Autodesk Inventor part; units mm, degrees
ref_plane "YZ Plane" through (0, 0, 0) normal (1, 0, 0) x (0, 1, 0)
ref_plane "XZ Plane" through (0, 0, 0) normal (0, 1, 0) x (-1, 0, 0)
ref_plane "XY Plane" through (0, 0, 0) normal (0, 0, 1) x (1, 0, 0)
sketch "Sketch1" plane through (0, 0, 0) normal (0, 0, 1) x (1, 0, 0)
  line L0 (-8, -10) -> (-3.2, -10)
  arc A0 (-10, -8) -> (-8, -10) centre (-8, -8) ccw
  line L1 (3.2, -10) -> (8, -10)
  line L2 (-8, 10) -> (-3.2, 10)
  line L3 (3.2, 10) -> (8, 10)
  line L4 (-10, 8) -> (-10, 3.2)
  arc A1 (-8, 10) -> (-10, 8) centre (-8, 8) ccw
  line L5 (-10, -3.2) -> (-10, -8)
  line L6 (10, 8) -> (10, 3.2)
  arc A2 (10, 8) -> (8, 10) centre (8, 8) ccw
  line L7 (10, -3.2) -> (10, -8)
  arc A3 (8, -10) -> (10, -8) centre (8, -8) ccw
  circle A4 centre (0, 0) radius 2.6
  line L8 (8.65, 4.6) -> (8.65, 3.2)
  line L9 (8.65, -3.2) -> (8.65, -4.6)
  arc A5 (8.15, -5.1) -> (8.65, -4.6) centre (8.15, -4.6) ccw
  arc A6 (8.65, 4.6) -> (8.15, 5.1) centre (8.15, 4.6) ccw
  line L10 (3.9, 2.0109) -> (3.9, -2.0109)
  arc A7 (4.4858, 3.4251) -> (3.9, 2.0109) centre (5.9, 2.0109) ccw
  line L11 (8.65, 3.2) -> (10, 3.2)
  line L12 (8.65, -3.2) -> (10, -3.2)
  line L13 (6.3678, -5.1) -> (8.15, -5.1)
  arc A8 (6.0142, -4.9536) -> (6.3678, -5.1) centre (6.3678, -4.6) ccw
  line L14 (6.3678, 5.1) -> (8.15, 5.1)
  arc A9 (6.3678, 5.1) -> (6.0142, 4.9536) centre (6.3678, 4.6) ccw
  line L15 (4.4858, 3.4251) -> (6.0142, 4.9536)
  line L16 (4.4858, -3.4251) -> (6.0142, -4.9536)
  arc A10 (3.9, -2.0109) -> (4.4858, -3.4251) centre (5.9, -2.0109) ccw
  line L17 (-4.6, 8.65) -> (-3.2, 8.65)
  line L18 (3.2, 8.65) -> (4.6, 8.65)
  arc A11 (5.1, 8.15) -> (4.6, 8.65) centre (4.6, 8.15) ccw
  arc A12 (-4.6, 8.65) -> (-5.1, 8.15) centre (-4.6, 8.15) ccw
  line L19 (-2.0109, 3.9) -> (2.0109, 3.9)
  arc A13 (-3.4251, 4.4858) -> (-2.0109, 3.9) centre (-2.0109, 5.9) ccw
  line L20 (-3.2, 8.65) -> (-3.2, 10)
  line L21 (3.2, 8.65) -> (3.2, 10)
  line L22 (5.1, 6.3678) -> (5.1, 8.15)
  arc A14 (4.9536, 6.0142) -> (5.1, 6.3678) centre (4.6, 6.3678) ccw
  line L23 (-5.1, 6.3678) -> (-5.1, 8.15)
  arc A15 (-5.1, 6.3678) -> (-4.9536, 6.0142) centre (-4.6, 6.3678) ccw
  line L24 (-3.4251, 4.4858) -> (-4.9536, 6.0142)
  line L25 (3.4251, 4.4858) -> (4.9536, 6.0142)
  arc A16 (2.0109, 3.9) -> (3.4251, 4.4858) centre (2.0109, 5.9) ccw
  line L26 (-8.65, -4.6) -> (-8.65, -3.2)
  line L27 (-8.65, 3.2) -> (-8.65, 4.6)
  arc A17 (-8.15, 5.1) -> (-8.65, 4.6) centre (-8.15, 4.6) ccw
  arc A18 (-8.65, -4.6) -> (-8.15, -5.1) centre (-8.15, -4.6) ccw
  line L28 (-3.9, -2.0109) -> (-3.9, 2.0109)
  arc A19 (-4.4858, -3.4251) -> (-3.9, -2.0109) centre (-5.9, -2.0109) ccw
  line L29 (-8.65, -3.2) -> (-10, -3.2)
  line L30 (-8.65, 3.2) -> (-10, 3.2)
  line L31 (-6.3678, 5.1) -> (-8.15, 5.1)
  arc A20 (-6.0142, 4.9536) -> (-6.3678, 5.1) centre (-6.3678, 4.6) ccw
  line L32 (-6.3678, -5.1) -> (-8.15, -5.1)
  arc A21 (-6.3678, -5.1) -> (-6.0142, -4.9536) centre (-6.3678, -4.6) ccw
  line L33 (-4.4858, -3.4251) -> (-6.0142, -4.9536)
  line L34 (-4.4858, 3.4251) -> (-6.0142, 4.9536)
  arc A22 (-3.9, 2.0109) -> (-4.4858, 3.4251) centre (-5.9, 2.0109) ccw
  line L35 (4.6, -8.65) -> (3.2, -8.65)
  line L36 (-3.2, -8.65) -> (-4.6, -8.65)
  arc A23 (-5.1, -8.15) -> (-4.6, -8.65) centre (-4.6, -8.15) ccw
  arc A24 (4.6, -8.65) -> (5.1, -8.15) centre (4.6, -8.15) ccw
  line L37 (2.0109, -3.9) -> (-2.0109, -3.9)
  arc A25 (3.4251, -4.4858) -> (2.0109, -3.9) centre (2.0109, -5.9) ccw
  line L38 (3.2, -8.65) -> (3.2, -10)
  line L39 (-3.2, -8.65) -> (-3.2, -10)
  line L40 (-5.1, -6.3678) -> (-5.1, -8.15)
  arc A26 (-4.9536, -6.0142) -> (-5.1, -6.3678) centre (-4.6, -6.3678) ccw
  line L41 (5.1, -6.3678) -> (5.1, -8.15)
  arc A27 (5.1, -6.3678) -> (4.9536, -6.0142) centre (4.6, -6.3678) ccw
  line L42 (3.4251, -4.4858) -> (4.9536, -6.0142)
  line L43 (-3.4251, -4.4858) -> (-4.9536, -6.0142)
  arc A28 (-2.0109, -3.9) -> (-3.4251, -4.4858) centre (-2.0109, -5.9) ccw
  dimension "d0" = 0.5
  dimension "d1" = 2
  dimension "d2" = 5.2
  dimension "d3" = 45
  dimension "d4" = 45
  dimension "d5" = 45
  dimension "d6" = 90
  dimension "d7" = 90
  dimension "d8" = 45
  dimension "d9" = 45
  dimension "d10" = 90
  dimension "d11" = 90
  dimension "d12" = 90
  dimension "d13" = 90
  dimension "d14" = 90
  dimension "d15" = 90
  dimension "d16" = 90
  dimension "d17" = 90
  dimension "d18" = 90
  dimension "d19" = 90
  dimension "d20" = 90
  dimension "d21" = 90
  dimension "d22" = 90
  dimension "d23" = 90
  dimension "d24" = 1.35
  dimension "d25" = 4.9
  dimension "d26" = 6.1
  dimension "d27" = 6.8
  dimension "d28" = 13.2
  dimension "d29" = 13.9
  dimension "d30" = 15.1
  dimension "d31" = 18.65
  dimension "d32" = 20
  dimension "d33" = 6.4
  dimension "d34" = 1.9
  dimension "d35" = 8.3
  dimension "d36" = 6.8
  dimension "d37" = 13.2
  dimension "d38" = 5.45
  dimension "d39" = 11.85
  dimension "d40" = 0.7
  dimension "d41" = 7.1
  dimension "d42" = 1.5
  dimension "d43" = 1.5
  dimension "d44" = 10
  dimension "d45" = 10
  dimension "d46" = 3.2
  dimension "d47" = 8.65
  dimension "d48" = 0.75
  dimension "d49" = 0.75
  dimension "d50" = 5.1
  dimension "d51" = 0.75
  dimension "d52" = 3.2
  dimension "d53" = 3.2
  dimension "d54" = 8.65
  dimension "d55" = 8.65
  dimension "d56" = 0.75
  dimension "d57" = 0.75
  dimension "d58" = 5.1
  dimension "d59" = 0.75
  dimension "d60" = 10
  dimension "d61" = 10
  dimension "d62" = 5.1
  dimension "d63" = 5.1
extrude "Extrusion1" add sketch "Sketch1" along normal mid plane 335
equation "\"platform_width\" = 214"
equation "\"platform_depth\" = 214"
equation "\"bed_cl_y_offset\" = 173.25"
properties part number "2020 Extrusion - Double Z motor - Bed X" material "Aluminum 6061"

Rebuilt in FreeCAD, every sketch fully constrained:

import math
import FreeCAD as App
import Part
import Sketcher

V = App.Vector

doc = App.newDocument("Part")
params = doc.addObject("Spreadsheet::Sheet", "Params")
for row, (alias, value) in enumerate([
    ("sketch1_radius", "2 mm"),
    ("sketch1_diameter", "5.2 mm"),
    ("sketch1_radius2", "0.5 mm"),
    ("sketch1_width", "1.35 mm"),
    ("pad1_length", "335 mm"),
], start=1):
    params.set(f"A{row}", alias)
    params.set(f"B{row}", "=" + value)
    params.setAlias(f"B{row}", alias)

body = doc.addObject("PartDesign::Body", "Body")

sketch1 = doc.addObject("Sketcher::SketchObject", "Sketch")
body.addObject(sketch1)
sketch1.AttachmentSupport = (doc.XY_Plane, [""])
sketch1.MapMode = "FlatFace"
sketch1.addGeometry([
    Part.ArcOfCircle(Part.Circle(V(-8, -8, 0), V(0, 0, 1), 2), math.radians(180), math.radians(270)),
    Part.LineSegment(V(-8, -10, 0), V(-3.2, -10, 0)),
    Part.LineSegment(V(-3.2, -10, 0), V(-3.2, -8.65, 0)),
    Part.LineSegment(V(-3.2, -8.65, 0), V(-4.6, -8.65, 0)),
    Part.ArcOfCircle(Part.Circle(V(-4.6, -8.15, 0), V(0, 0, 1), 0.5), math.radians(180), math.radians(270)),
    Part.LineSegment(V(-5.1, -8.15, 0), V(-5.1, -6.37, 0)),
    Part.ArcOfCircle(Part.Circle(V(-4.6, -6.37, 0), V(0, 0, 1), 0.5), math.radians(135), math.radians(180)),
    Part.LineSegment(V(-4.95, -6.01, 0), V(-3.43, -4.49, 0)),
    Part.ArcOfCircle(Part.Circle(V(-2.01, -5.9, 0), V(0, 0, 1), 2), math.radians(90), math.radians(135)),
    Part.LineSegment(V(-2.01, -3.9, 0), V(2.01, -3.9, 0)),
    Part.ArcOfCircle(Part.Circle(V(2.01, -5.9, 0), V(0, 0, 1), 2), math.radians(45), math.radians(90)),
    Part.LineSegment(V(3.43, -4.49, 0), V(4.95, -6.01, 0)),
    Part.ArcOfCircle(Part.Circle(V(4.6, -6.37, 0), V(0, 0, 1), 0.5), math.radians(0), math.radians(45)),
    Part.LineSegment(V(5.1, -6.37, 0), V(5.1, -8.15, 0)),
    Part.ArcOfCircle(Part.Circle(V(4.6, -8.15, 0), V(0, 0, 1), 0.5), math.radians(-90), math.radians(0)),
    Part.LineSegment(V(4.6, -8.65, 0), V(3.2, -8.65, 0)),
    Part.LineSegment(V(3.2, -8.65, 0), V(3.2, -10, 0)),
    Part.LineSegment(V(3.2, -10, 0), V(8, -10, 0)),
    Part.ArcOfCircle(Part.Circle(V(8, -8, 0), V(0, 0, 1), 2), math.radians(-90), math.radians(0)),
    Part.LineSegment(V(10, -8, 0), V(10, -3.2, 0)),
    Part.LineSegment(V(10, -3.2, 0), V(8.65, -3.2, 0)),
    Part.LineSegment(V(8.65, -3.2, 0), V(8.65, -4.6, 0)),
    Part.ArcOfCircle(Part.Circle(V(8.15, -4.6, 0), V(0, 0, 1), 0.5), math.radians(-90), math.radians(0)),
    Part.LineSegment(V(8.15, -5.1, 0), V(6.37, -5.1, 0)),
    Part.ArcOfCircle(Part.Circle(V(6.37, -4.6, 0), V(0, 0, 1), 0.5), math.radians(-135), math.radians(-90)),
    Part.LineSegment(V(6.01, -4.95, 0), V(4.49, -3.43, 0)),
    Part.ArcOfCircle(Part.Circle(V(5.9, -2.01, 0), V(0, 0, 1), 2), math.radians(180), math.radians(225)),
    Part.LineSegment(V(3.9, -2.01, 0), V(3.9, 2.01, 0)),
    Part.ArcOfCircle(Part.Circle(V(5.9, 2.01, 0), V(0, 0, 1), 2), math.radians(135), math.radians(180)),
    Part.LineSegment(V(4.49, 3.43, 0), V(6.01, 4.95, 0)),
    Part.ArcOfCircle(Part.Circle(V(6.37, 4.6, 0), V(0, 0, 1), 0.5), math.radians(90), math.radians(135)),
    Part.LineSegment(V(6.37, 5.1, 0), V(8.15, 5.1, 0)),
    Part.ArcOfCircle(Part.Circle(V(8.15, 4.6, 0), V(0, 0, 1), 0.5), math.radians(0), math.radians(90)),
    Part.LineSegment(V(8.65, 4.6, 0), V(8.65, 3.2, 0)),
    Part.LineSegment(V(8.65, 3.2, 0), V(10, 3.2, 0)),
    Part.LineSegment(V(10, 3.2, 0), V(10, 8, 0)),
    Part.ArcOfCircle(Part.Circle(V(8, 8, 0), V(0, 0, 1), 2), math.radians(0), math.radians(90)),
    Part.LineSegment(V(8, 10, 0), V(3.2, 10, 0)),
    Part.LineSegment(V(3.2, 10, 0), V(3.2, 8.65, 0)),
    Part.LineSegment(V(3.2, 8.65, 0), V(4.6, 8.65, 0)),
    Part.ArcOfCircle(Part.Circle(V(4.6, 8.15, 0), V(0, 0, 1), 0.5), math.radians(0), math.radians(90)),
    Part.LineSegment(V(5.1, 8.15, 0), V(5.1, 6.37, 0)),
    Part.ArcOfCircle(Part.Circle(V(4.6, 6.37, 0), V(0, 0, 1), 0.5), math.radians(-45), math.radians(0)),
    Part.LineSegment(V(4.95, 6.01, 0), V(3.43, 4.49, 0)),
    Part.ArcOfCircle(Part.Circle(V(2.01, 5.9, 0), V(0, 0, 1), 2), math.radians(-90), math.radians(-45)),
    Part.LineSegment(V(2.01, 3.9, 0), V(-2.01, 3.9, 0)),
    Part.ArcOfCircle(Part.Circle(V(-2.01, 5.9, 0), V(0, 0, 1), 2), math.radians(-135), math.radians(-90)),
    Part.LineSegment(V(-3.43, 4.49, 0), V(-4.95, 6.01, 0)),
    Part.ArcOfCircle(Part.Circle(V(-4.6, 6.37, 0), V(0, 0, 1), 0.5), math.radians(180), math.radians(225)),
    Part.LineSegment(V(-5.1, 6.37, 0), V(-5.1, 8.15, 0)),
    Part.ArcOfCircle(Part.Circle(V(-4.6, 8.15, 0), V(0, 0, 1), 0.5), math.radians(90), math.radians(180)),
    Part.LineSegment(V(-4.6, 8.65, 0), V(-3.2, 8.65, 0)),
    Part.LineSegment(V(-3.2, 8.65, 0), V(-3.2, 10, 0)),
    Part.LineSegment(V(-3.2, 10, 0), V(-8, 10, 0)),
    Part.ArcOfCircle(Part.Circle(V(-8, 8, 0), V(0, 0, 1), 2), math.radians(90), math.radians(180)),
    Part.LineSegment(V(-10, 8, 0), V(-10, 3.2, 0)),
    Part.LineSegment(V(-10, 3.2, 0), V(-8.65, 3.2, 0)),
    Part.LineSegment(V(-8.65, 3.2, 0), V(-8.65, 4.6, 0)),
    Part.ArcOfCircle(Part.Circle(V(-8.15, 4.6, 0), V(0, 0, 1), 0.5), math.radians(90), math.radians(180)),
    Part.LineSegment(V(-8.15, 5.1, 0), V(-6.37, 5.1, 0)),
    Part.ArcOfCircle(Part.Circle(V(-6.37, 4.6, 0), V(0, 0, 1), 0.5), math.radians(45), math.radians(90)),
    Part.LineSegment(V(-6.01, 4.95, 0), V(-4.49, 3.43, 0)),
    Part.ArcOfCircle(Part.Circle(V(-5.9, 2.01, 0), V(0, 0, 1), 2), math.radians(0), math.radians(45)),
    Part.LineSegment(V(-3.9, 2.01, 0), V(-3.9, -2.01, 0)),
    Part.ArcOfCircle(Part.Circle(V(-5.9, -2.01, 0), V(0, 0, 1), 2), math.radians(-45), math.radians(0)),
    Part.LineSegment(V(-4.49, -3.43, 0), V(-6.01, -4.95, 0)),
    Part.ArcOfCircle(Part.Circle(V(-6.37, -4.6, 0), V(0, 0, 1), 0.5), math.radians(-90), math.radians(-45)),
    Part.LineSegment(V(-6.37, -5.1, 0), V(-8.15, -5.1, 0)),
    Part.ArcOfCircle(Part.Circle(V(-8.15, -4.6, 0), V(0, 0, 1), 0.5), math.radians(180), math.radians(270)),
    Part.LineSegment(V(-8.65, -4.6, 0), V(-8.65, -3.2, 0)),
    Part.LineSegment(V(-8.65, -3.2, 0), V(-10, -3.2, 0)),
    Part.LineSegment(V(-10, -3.2, 0), V(-10, -8, 0)),
    Part.Circle(V(0, 0, 0), V(0, 0, 1), 2.6),
], False)
sketch1.addConstraint([
    Sketcher.Constraint("Tangent", 0, 2, 1, 1),
    Sketcher.Constraint("Coincident", 1, 2, 2, 1),
    Sketcher.Constraint("Coincident", 2, 2, 3, 1),
    Sketcher.Constraint("Tangent", 3, 2, 4, 2),
    Sketcher.Constraint("Tangent", 4, 1, 5, 1),
    Sketcher.Constraint("Tangent", 5, 2, 6, 2),
    Sketcher.Constraint("Tangent", 6, 1, 7, 1),
    Sketcher.Constraint("Tangent", 7, 2, 8, 2),
    Sketcher.Constraint("Tangent", 8, 1, 9, 1),
    Sketcher.Constraint("Tangent", 9, 2, 10, 2),
    Sketcher.Constraint("Tangent", 10, 1, 11, 1),
    Sketcher.Constraint("Tangent", 11, 2, 12, 2),
    Sketcher.Constraint("Tangent", 12, 1, 13, 1),
    Sketcher.Constraint("Tangent", 13, 2, 14, 2),
    Sketcher.Constraint("Tangent", 14, 1, 15, 1),
    Sketcher.Constraint("Coincident", 15, 2, 16, 1),
    Sketcher.Constraint("Coincident", 16, 2, 17, 1),
    Sketcher.Constraint("Tangent", 17, 2, 18, 1),
    Sketcher.Constraint("Tangent", 18, 2, 19, 1),
    Sketcher.Constraint("Coincident", 19, 2, 20, 1),
    Sketcher.Constraint("Coincident", 20, 2, 21, 1),
    Sketcher.Constraint("Tangent", 21, 2, 22, 2),
    Sketcher.Constraint("Tangent", 22, 1, 23, 1),
    Sketcher.Constraint("Tangent", 23, 2, 24, 2),
    Sketcher.Constraint("Tangent", 24, 1, 25, 1),
    Sketcher.Constraint("Tangent", 25, 2, 26, 2),
    Sketcher.Constraint("Tangent", 26, 1, 27, 1),
    Sketcher.Constraint("Tangent", 27, 2, 28, 2),
    Sketcher.Constraint("Tangent", 28, 1, 29, 1),
    Sketcher.Constraint("Tangent", 29, 2, 30, 2),
    Sketcher.Constraint("Tangent", 30, 1, 31, 1),
    Sketcher.Constraint("Tangent", 31, 2, 32, 2),
    Sketcher.Constraint("Tangent", 32, 1, 33, 1),
    Sketcher.Constraint("Coincident", 33, 2, 34, 1),
    Sketcher.Constraint("Coincident", 34, 2, 35, 1),
    Sketcher.Constraint("Tangent", 35, 2, 36, 1),
    Sketcher.Constraint("Tangent", 36, 2, 37, 1),
    Sketcher.Constraint("Coincident", 37, 2, 38, 1),
    Sketcher.Constraint("Coincident", 38, 2, 39, 1),
    Sketcher.Constraint("Tangent", 39, 2, 40, 2),
    Sketcher.Constraint("Tangent", 40, 1, 41, 1),
    Sketcher.Constraint("Tangent", 41, 2, 42, 2),
    Sketcher.Constraint("Tangent", 42, 1, 43, 1),
    Sketcher.Constraint("Tangent", 43, 2, 44, 2),
    Sketcher.Constraint("Tangent", 44, 1, 45, 1),
    Sketcher.Constraint("Tangent", 45, 2, 46, 2),
    Sketcher.Constraint("Tangent", 46, 1, 47, 1),
    Sketcher.Constraint("Tangent", 47, 2, 48, 2),
    Sketcher.Constraint("Tangent", 48, 1, 49, 1),
    Sketcher.Constraint("Tangent", 49, 2, 50, 2),
    Sketcher.Constraint("Tangent", 50, 1, 51, 1),
    Sketcher.Constraint("Coincident", 51, 2, 52, 1),
    Sketcher.Constraint("Coincident", 52, 2, 53, 1),
    Sketcher.Constraint("Tangent", 53, 2, 54, 1),
    Sketcher.Constraint("Tangent", 54, 2, 55, 1),
    Sketcher.Constraint("Coincident", 55, 2, 56, 1),
    Sketcher.Constraint("Coincident", 56, 2, 57, 1),
    Sketcher.Constraint("Tangent", 57, 2, 58, 2),
    Sketcher.Constraint("Tangent", 58, 1, 59, 1),
    Sketcher.Constraint("Tangent", 59, 2, 60, 2),
    Sketcher.Constraint("Tangent", 60, 1, 61, 1),
    Sketcher.Constraint("Tangent", 61, 2, 62, 2),
    Sketcher.Constraint("Tangent", 62, 1, 63, 1),
    Sketcher.Constraint("Tangent", 63, 2, 64, 2),
    Sketcher.Constraint("Tangent", 64, 1, 65, 1),
    Sketcher.Constraint("Tangent", 65, 2, 66, 2),
    Sketcher.Constraint("Tangent", 66, 1, 67, 1),
    Sketcher.Constraint("Tangent", 67, 2, 68, 2),
    Sketcher.Constraint("Tangent", 68, 1, 69, 1),
    Sketcher.Constraint("Coincident", 69, 2, 70, 1),
    Sketcher.Constraint("Coincident", 70, 2, 71, 1),
    Sketcher.Constraint("Tangent", 71, 2, 0, 1),
    Sketcher.Constraint("Horizontal", 1),
    Sketcher.Constraint("Vertical", 2),
    Sketcher.Constraint("Horizontal", 3),
    Sketcher.Constraint("Vertical", 5),
    Sketcher.Constraint("Horizontal", 9),
    Sketcher.Constraint("Vertical", 13),
    Sketcher.Constraint("Horizontal", 15),
    Sketcher.Constraint("Vertical", 16),
    Sketcher.Constraint("Horizontal", 17),
    Sketcher.Constraint("Vertical", 19),
    Sketcher.Constraint("Horizontal", 20),
    Sketcher.Constraint("Vertical", 21),
    Sketcher.Constraint("Horizontal", 23),
    Sketcher.Constraint("Vertical", 27),
    Sketcher.Constraint("Horizontal", 31),
    Sketcher.Constraint("Vertical", 33),
    Sketcher.Constraint("Horizontal", 34),
    Sketcher.Constraint("Vertical", 35),
    Sketcher.Constraint("Horizontal", 37),
    Sketcher.Constraint("Vertical", 38),
    Sketcher.Constraint("Horizontal", 39),
    Sketcher.Constraint("Vertical", 41),
    Sketcher.Constraint("Horizontal", 45),
    Sketcher.Constraint("Vertical", 49),
    Sketcher.Constraint("Horizontal", 51),
    Sketcher.Constraint("Vertical", 52),
    Sketcher.Constraint("Horizontal", 53),
    Sketcher.Constraint("Vertical", 55),
    Sketcher.Constraint("Horizontal", 56),
    Sketcher.Constraint("Vertical", 57),
    Sketcher.Constraint("Horizontal", 59),
    Sketcher.Constraint("Vertical", 63),
    Sketcher.Constraint("Horizontal", 67),
    Sketcher.Constraint("Vertical", 69),
    Sketcher.Constraint("Horizontal", 70),
    Sketcher.Constraint("Vertical", 71),
    Sketcher.Constraint("Coincident", 72, 3, -1, 1),
    Sketcher.Constraint("Equal", 4, 6),
    Sketcher.Constraint("Equal", 0, 8),
    Sketcher.Constraint("Equal", 8, 10),
    Sketcher.Constraint("Equal", 6, 12),
    Sketcher.Constraint("Equal", 12, 14),
    Sketcher.Constraint("Equal", 10, 18),
    Sketcher.Constraint("Equal", 14, 22),
    Sketcher.Constraint("Equal", 22, 24),
    Sketcher.Constraint("Equal", 18, 26),
    Sketcher.Constraint("Equal", 26, 28),
    Sketcher.Constraint("Equal", 24, 30),
    Sketcher.Constraint("Equal", 30, 32),
    Sketcher.Constraint("Equal", 28, 36),
    Sketcher.Constraint("Equal", 32, 40),
    Sketcher.Constraint("Equal", 40, 42),
    Sketcher.Constraint("Equal", 36, 44),
    Sketcher.Constraint("Equal", 44, 46),
    Sketcher.Constraint("Equal", 42, 48),
    Sketcher.Constraint("Equal", 48, 50),
    Sketcher.Constraint("Equal", 46, 54),
    Sketcher.Constraint("Equal", 50, 58),
    Sketcher.Constraint("Equal", 58, 60),
    Sketcher.Constraint("Equal", 54, 62),
    Sketcher.Constraint("Equal", 62, 64),
    Sketcher.Constraint("Equal", 60, 66),
    Sketcher.Constraint("Equal", 66, 68),
    Sketcher.Constraint("Symmetric", 0, 3, 36, 3, -1, 1),
    Sketcher.Constraint("Symmetric", 4, 3, 40, 3, -1, 1),
    Sketcher.Constraint("Symmetric", 8, 3, 44, 3, -1, 1),
    Sketcher.Constraint("Symmetric", 12, 3, 48, 3, -1, 1),
    Sketcher.Constraint("Symmetric", 18, 3, 54, 3, -1, 1),
    Sketcher.Constraint("Symmetric", 22, 3, 58, 3, -1, 1),
    Sketcher.Constraint("Symmetric", 26, 3, 62, 3, -1, 1),
    Sketcher.Constraint("Symmetric", 30, 3, 66, 3, -1, 1),
    Sketcher.Constraint("Symmetric", 15, 2, 51, 2, -1, 1),
    Sketcher.Constraint("Symmetric", 33, 2, 69, 2, -1, 1),
    Sketcher.Constraint("Symmetric", 6, 3, 12, 3, -2),
    Sketcher.Constraint("Symmetric", 0, 3, 18, 3, -2),
    Sketcher.Constraint("Symmetric", 32, 3, 58, 3, -2),
    Sketcher.Constraint("Symmetric", 2, 2, 15, 2, -2),
    Sketcher.Constraint("Symmetric", 43, 2, 46, 1, -2),
    Sketcher.Constraint("Symmetric", 29, 2, 60, 1, -2),
    Sketcher.Constraint("Symmetric", 25, 2, 64, 1, -2),
    Sketcher.Constraint("Perpendicular", 7, 11),
    Sketcher.Constraint("Parallel", 11, 25),
    Sketcher.Constraint("Perpendicular", 25, 29),
    Sketcher.Constraint("Horizontal", 34, 2, 55, 2),
    Sketcher.Constraint("Horizontal", 20, 2, 69, 2),
    Sketcher.Constraint("Vertical", 16, 2, 37, 2),
    Sketcher.Constraint("Equal", 70, 2),
    Sketcher.Constraint("Equal", 67, 5),
    Sketcher.Constraint("Equal", 53, 19),
    Sketcher.Constraint("Equal", 51, 21),
    Sketcher.Constraint("Equal", 45, 27),
    Sketcher.Constraint("Equal", 11, 25),
    Sketcher.Constraint("Radius", 0, 2.0),
    Sketcher.Constraint("Diameter", 72, 5.2),
    Sketcher.Constraint("Radius", 4, 0.5),
    Sketcher.Constraint("DistanceY", 0, 2, -1, 1, 10.0),
    Sketcher.Constraint("DistanceX", 20, 2, 20, 1, 1.35),
    Sketcher.Constraint("DistanceX", 1, 2, -1, 1, 3.2),
    Sketcher.Constraint("DistanceX", 4, 1, -1, 1, 5.1),
    Sketcher.Constraint("DistanceY", 8, 3, -1, 1, 5.9),
    Sketcher.Constraint("DistanceX", 9, 1, 9, 2, 4.0218),
])
sketch1.setExpression("Constraints[164]", "Params.sketch1_radius")
sketch1.setExpression("Constraints[165]", "Params.sketch1_diameter")
sketch1.setExpression("Constraints[166]", "Params.sketch1_radius2")
sketch1.setExpression("Constraints[168]", "Params.sketch1_width")
pad1 = doc.addObject("PartDesign::Pad", "Pad")
body.addObject(pad1)
pad1.Profile = sketch1
pad1.setExpression("Length", "Params.pad1_length")
pad1.Midplane = True

doc.recompute()
